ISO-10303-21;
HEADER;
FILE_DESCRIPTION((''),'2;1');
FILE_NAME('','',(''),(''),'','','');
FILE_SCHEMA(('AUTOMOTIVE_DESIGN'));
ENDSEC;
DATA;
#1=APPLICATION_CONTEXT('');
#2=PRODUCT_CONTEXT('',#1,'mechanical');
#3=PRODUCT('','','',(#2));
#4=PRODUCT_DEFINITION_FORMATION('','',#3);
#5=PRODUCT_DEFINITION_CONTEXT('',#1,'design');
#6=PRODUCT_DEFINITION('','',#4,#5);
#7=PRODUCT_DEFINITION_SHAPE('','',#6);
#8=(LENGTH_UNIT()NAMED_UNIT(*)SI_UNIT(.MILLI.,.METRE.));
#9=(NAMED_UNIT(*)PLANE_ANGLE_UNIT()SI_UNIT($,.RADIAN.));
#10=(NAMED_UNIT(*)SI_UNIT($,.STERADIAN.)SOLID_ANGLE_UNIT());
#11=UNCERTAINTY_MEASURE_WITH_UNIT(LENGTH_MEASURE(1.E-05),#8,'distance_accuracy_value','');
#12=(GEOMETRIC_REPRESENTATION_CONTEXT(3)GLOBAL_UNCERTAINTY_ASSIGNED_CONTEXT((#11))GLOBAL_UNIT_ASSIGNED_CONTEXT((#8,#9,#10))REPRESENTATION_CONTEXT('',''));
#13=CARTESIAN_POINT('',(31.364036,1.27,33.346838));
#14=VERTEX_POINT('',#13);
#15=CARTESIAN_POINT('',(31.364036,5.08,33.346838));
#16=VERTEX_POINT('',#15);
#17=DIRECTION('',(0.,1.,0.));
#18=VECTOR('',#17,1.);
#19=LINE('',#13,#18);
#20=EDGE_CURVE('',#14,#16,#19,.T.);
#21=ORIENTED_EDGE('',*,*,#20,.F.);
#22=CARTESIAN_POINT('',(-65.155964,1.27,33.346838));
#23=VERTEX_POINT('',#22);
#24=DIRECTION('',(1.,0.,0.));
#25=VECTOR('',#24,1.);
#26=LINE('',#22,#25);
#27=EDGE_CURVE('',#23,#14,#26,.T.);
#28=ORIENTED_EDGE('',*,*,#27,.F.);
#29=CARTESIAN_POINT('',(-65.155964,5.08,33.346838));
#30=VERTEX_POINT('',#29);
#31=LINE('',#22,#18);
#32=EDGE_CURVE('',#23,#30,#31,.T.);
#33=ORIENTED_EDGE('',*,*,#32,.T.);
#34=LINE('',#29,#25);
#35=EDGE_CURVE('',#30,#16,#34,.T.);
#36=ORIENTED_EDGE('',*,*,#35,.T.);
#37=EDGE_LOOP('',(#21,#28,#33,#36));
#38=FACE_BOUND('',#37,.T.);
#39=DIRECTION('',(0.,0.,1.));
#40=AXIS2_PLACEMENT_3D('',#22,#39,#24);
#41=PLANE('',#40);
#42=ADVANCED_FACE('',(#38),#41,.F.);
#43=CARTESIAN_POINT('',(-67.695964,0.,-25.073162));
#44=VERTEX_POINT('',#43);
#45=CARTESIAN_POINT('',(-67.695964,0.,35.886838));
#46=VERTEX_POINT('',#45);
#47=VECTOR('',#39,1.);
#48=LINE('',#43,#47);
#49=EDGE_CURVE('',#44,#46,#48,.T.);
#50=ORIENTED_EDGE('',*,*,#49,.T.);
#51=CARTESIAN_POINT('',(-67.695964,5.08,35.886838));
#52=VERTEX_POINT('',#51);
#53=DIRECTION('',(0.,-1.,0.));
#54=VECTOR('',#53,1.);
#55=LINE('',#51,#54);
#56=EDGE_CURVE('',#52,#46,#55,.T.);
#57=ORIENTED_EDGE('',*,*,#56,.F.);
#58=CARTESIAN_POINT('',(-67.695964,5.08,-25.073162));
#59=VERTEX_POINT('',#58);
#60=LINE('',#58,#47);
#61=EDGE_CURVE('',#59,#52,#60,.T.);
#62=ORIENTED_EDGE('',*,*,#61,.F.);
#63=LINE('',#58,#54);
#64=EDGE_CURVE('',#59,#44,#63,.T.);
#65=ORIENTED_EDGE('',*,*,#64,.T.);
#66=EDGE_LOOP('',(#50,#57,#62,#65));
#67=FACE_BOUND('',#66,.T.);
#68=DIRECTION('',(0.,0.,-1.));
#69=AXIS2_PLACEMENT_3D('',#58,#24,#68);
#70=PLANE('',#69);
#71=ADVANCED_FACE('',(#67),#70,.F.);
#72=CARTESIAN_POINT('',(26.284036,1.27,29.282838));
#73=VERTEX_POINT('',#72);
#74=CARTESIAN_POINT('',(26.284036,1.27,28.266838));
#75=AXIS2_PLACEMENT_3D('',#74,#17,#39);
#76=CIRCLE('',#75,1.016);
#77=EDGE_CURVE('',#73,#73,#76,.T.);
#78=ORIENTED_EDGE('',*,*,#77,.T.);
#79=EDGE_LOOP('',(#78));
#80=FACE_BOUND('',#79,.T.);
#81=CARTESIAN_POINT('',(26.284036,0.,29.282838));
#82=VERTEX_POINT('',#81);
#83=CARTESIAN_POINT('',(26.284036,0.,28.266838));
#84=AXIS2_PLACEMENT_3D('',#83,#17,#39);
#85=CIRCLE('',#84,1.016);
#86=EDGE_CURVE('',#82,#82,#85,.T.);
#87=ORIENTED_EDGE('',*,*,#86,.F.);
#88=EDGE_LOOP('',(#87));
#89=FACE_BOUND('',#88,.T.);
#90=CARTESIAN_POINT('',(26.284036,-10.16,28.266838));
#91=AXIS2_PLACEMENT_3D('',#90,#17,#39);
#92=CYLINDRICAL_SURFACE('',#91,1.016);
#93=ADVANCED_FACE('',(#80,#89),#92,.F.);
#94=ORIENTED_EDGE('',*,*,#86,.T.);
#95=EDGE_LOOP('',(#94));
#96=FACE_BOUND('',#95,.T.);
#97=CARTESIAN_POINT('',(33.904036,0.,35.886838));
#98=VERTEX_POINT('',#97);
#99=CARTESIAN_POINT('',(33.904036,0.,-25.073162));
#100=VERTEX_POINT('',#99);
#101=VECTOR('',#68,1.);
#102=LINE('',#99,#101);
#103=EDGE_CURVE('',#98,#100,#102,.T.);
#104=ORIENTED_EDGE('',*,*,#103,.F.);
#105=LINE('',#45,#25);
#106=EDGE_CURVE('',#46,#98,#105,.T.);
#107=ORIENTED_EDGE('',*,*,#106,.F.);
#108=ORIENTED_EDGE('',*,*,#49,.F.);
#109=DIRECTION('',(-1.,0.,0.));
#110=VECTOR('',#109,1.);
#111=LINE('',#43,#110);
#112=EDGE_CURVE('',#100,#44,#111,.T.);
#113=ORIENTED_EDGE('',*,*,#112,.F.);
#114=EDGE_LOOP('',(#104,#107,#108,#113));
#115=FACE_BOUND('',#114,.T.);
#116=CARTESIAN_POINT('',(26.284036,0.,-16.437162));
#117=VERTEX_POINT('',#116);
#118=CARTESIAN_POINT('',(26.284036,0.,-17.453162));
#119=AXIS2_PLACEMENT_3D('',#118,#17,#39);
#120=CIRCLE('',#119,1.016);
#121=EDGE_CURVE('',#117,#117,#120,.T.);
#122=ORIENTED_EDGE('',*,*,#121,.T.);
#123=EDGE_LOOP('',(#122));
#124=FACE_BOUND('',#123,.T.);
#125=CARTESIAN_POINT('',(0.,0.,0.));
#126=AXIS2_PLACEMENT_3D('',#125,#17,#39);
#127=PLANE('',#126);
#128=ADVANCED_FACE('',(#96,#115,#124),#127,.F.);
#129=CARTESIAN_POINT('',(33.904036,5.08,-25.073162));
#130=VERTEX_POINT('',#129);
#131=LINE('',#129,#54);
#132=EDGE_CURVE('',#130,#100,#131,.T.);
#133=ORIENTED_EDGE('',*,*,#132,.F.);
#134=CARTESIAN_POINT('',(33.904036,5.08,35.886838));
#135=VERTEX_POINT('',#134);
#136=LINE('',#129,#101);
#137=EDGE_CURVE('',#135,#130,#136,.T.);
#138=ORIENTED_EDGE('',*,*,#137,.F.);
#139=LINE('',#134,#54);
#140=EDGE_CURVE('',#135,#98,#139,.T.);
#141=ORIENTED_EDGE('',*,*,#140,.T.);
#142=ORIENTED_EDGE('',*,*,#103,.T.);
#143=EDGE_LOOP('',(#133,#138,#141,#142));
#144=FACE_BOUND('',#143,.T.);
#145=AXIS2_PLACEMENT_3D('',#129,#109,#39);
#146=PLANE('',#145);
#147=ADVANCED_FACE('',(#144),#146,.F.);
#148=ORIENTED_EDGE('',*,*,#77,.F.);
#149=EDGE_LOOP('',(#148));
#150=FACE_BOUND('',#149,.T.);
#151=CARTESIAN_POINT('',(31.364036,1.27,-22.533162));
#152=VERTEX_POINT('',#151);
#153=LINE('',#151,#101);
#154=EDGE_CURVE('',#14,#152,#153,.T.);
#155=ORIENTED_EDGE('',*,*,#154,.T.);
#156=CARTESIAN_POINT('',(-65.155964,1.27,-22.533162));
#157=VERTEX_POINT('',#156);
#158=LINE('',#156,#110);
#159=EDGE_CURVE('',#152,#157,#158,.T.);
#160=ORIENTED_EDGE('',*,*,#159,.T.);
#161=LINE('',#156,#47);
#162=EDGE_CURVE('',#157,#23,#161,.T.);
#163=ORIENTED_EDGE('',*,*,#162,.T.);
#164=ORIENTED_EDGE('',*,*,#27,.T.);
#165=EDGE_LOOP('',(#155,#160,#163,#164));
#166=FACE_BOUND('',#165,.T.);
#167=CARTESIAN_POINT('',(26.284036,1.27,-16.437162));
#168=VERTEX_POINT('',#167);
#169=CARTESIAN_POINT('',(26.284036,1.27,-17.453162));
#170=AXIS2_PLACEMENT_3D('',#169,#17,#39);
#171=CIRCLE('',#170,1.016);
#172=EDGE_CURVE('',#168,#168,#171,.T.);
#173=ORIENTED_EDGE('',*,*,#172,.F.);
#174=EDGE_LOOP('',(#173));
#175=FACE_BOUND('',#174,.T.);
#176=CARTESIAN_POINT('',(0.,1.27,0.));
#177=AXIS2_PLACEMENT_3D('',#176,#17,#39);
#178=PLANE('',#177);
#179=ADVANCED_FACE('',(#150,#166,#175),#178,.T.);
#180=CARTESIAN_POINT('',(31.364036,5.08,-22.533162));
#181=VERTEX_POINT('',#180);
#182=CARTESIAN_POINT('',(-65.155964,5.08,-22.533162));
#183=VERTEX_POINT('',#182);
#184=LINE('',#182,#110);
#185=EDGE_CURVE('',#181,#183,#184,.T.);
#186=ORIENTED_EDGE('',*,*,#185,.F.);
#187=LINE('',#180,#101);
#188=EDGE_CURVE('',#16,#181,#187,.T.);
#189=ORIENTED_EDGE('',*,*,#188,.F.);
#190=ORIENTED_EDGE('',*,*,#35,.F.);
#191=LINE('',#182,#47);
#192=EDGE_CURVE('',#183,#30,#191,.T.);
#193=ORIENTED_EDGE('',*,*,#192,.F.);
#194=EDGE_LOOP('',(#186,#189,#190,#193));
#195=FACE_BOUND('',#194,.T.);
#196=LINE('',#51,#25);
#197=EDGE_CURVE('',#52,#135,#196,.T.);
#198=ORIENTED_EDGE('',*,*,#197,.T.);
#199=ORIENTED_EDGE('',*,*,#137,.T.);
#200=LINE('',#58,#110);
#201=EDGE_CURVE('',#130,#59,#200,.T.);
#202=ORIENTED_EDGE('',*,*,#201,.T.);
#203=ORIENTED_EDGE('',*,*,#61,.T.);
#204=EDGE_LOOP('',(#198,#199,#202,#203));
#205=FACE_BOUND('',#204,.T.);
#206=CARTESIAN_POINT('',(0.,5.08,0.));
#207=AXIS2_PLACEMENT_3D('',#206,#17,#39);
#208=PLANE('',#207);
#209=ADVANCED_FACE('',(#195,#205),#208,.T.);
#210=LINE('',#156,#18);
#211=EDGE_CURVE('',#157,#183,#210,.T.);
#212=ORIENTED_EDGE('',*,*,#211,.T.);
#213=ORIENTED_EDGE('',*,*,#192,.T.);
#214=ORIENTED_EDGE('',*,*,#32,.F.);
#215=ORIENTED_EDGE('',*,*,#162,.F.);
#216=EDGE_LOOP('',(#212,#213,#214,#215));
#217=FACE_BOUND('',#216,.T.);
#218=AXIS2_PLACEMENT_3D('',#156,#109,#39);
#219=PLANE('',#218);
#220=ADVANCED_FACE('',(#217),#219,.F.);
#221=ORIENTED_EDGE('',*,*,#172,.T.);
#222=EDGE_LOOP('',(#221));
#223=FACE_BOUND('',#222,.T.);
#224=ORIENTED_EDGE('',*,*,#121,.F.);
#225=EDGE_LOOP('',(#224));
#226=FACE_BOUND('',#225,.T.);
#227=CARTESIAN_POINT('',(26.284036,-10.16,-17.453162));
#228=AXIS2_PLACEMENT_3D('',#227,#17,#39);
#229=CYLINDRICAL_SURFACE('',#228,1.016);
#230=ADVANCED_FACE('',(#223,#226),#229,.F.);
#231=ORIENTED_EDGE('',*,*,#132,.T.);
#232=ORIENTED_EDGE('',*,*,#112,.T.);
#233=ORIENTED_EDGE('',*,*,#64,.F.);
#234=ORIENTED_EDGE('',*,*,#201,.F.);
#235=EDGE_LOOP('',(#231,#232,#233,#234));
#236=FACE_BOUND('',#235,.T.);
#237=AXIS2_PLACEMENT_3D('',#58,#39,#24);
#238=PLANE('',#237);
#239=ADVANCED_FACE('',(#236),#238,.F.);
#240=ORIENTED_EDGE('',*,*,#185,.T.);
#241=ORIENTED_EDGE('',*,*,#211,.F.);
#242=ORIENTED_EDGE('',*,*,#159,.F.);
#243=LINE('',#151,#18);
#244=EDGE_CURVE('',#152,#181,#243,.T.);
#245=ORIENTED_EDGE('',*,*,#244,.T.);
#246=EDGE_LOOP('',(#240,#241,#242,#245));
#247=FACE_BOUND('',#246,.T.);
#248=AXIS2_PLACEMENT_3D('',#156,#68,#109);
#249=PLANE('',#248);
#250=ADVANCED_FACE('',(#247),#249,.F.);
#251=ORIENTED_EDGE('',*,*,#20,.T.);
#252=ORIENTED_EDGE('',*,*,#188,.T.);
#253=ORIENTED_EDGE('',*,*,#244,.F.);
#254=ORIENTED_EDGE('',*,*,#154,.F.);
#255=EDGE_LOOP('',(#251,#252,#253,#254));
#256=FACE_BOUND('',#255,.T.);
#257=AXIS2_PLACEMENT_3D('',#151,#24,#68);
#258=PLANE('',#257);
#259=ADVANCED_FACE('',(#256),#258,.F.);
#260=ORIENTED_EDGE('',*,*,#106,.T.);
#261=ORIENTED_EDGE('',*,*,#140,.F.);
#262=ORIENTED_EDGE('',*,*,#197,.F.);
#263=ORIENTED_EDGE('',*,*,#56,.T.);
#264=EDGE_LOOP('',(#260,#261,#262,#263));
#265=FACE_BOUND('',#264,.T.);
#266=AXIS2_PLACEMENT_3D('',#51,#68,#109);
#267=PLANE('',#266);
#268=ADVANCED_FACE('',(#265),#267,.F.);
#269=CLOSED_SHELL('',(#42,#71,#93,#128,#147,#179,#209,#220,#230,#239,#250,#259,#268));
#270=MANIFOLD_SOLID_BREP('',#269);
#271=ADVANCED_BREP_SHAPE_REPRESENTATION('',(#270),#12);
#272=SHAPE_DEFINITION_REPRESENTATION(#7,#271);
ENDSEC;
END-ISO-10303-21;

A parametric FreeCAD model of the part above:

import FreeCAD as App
import Part
import Sketcher
from FreeCAD import Vector
Q = App.Units.Quantity


def add_polygon(sketch, points):
    """Adds a closed chain of lines whose ends are joined by coincident constraints."""
    first, n = sketch.GeometryCount, len(points)
    for a, b in zip(points, points[1:] + points[:1]):
        sketch.addGeometry(Part.LineSegment(App.Vector(*a, 0), App.Vector(*b, 0)), False)
    for i in range(n):
        sketch.addConstraint(Sketcher.Constraint("Coincident", first + i, 2, first + (i + 1) % n, 1))

doc = App.newDocument("Part")
body = doc.addObject("PartDesign::Body", "Body")

# Sketch on XZ plane
sketch1 = body.newObject("Sketcher::SketchObject", "Sketch")
sketch1.AttachmentSupport = (doc.getObject("XZ_Plane"), [""])
sketch1.MapMode = "FlatFace"
add_polygon(sketch1, [(-68, -25), (-68, 36), (34, 36), (34, -25)])  # lines 0-3
sketch1.addConstraint([
    Sketcher.Constraint("Vertical", 0),
    Sketcher.Constraint("Horizontal", 1),
    Sketcher.Constraint("Vertical", 2),
    Sketcher.Constraint("Horizontal", 3),
    Sketcher.Constraint("DistanceX", 1, 1, 1, 2, Q("4 in")),
    Sketcher.Constraint("DistanceY", 0, 1, 0, 2, Q("2.4 in")),
    Sketcher.Constraint("DistanceY", -1, 1, 0, 2, 35.886838),
    Sketcher.Constraint("DistanceX", 0, 2, -1, 1, 67.695964),
])
pad1 = body.newObject("PartDesign::Pad", "Pad")
pad1.Profile = sketch1
pad1.Length = Q("0.2 in")
pad1.Reversed = True

# Sketch on XZ plane
sketch2 = body.newObject("Sketcher::SketchObject", "Sketch001")
sketch2.AttachmentSupport = (doc.getObject("XZ_Plane"), [""])
sketch2.MapMode = "FlatFace"
sketch2.AttachmentOffset = App.Placement(Vector(0, 0, -0.2 * 25.4), App.Rotation())
add_polygon(sketch2, [(-65, -23), (-65, 33), (31, 33), (31, -23)])  # lines 0-3
sketch2.addConstraint([
    Sketcher.Constraint("Vertical", 0),
    Sketcher.Constraint("Horizontal", 1),
    Sketcher.Constraint("Vertical", 2),
    Sketcher.Constraint("Horizontal", 3),
    Sketcher.Constraint("DistanceX", 1, 1, 1, 2, Q("3.8 in")),
    Sketcher.Constraint("DistanceY", 0, 1, 0, 2, Q("2.2 in")),
    Sketcher.Constraint("DistanceY", -1, 1, 0, 2, 33.346838),
    Sketcher.Constraint("DistanceX", 0, 2, -1, 1, 65.155964),
])
pocket1 = body.newObject("PartDesign::Pocket", "Pocket")
pocket1.Profile = sketch2
pocket1.Length = Q("0.15 in")
pocket1.Reversed = True

# Sketch on XZ plane
sketch3 = body.newObject("Sketcher::SketchObject", "Sketch002")
sketch3.AttachmentSupport = (doc.getObject("XZ_Plane"), [""])
sketch3.MapMode = "FlatFace"
sketch3.AttachmentOffset = App.Placement(Vector(0, 0, -0.05 * 25.4), App.Rotation())
sketch3.addGeometry([
    Part.Circle(Vector(26.3, -17.5, 0), Vector(0, 0, 1), 1),
    Part.Circle(Vector(26.3, 28.3, 0), Vector(0, 0, 1), 1),
], False)
sketch3.addConstraint([
    Sketcher.Constraint("Equal", 0, 1),
    Sketcher.Constraint("Vertical", 0, 3, 1, 3),
    Sketcher.Constraint("Diameter", 0, Q("0.08 in")),
    Sketcher.Constraint("DistanceY", 0, 3, 1, 3, Q("1.8 in")),
    Sketcher.Constraint("DistanceY", 0, 3, -1, 1, 17.453162),
    Sketcher.Constraint("DistanceX", -1, 1, 0, 3, 26.284036),
])
pocket2 = body.newObject("PartDesign::Pocket", "Pocket001")
pocket2.Profile = sketch3
pocket2.Length = Q("0.45 in")
pocket2.Reversed = True

doc.recompute()
